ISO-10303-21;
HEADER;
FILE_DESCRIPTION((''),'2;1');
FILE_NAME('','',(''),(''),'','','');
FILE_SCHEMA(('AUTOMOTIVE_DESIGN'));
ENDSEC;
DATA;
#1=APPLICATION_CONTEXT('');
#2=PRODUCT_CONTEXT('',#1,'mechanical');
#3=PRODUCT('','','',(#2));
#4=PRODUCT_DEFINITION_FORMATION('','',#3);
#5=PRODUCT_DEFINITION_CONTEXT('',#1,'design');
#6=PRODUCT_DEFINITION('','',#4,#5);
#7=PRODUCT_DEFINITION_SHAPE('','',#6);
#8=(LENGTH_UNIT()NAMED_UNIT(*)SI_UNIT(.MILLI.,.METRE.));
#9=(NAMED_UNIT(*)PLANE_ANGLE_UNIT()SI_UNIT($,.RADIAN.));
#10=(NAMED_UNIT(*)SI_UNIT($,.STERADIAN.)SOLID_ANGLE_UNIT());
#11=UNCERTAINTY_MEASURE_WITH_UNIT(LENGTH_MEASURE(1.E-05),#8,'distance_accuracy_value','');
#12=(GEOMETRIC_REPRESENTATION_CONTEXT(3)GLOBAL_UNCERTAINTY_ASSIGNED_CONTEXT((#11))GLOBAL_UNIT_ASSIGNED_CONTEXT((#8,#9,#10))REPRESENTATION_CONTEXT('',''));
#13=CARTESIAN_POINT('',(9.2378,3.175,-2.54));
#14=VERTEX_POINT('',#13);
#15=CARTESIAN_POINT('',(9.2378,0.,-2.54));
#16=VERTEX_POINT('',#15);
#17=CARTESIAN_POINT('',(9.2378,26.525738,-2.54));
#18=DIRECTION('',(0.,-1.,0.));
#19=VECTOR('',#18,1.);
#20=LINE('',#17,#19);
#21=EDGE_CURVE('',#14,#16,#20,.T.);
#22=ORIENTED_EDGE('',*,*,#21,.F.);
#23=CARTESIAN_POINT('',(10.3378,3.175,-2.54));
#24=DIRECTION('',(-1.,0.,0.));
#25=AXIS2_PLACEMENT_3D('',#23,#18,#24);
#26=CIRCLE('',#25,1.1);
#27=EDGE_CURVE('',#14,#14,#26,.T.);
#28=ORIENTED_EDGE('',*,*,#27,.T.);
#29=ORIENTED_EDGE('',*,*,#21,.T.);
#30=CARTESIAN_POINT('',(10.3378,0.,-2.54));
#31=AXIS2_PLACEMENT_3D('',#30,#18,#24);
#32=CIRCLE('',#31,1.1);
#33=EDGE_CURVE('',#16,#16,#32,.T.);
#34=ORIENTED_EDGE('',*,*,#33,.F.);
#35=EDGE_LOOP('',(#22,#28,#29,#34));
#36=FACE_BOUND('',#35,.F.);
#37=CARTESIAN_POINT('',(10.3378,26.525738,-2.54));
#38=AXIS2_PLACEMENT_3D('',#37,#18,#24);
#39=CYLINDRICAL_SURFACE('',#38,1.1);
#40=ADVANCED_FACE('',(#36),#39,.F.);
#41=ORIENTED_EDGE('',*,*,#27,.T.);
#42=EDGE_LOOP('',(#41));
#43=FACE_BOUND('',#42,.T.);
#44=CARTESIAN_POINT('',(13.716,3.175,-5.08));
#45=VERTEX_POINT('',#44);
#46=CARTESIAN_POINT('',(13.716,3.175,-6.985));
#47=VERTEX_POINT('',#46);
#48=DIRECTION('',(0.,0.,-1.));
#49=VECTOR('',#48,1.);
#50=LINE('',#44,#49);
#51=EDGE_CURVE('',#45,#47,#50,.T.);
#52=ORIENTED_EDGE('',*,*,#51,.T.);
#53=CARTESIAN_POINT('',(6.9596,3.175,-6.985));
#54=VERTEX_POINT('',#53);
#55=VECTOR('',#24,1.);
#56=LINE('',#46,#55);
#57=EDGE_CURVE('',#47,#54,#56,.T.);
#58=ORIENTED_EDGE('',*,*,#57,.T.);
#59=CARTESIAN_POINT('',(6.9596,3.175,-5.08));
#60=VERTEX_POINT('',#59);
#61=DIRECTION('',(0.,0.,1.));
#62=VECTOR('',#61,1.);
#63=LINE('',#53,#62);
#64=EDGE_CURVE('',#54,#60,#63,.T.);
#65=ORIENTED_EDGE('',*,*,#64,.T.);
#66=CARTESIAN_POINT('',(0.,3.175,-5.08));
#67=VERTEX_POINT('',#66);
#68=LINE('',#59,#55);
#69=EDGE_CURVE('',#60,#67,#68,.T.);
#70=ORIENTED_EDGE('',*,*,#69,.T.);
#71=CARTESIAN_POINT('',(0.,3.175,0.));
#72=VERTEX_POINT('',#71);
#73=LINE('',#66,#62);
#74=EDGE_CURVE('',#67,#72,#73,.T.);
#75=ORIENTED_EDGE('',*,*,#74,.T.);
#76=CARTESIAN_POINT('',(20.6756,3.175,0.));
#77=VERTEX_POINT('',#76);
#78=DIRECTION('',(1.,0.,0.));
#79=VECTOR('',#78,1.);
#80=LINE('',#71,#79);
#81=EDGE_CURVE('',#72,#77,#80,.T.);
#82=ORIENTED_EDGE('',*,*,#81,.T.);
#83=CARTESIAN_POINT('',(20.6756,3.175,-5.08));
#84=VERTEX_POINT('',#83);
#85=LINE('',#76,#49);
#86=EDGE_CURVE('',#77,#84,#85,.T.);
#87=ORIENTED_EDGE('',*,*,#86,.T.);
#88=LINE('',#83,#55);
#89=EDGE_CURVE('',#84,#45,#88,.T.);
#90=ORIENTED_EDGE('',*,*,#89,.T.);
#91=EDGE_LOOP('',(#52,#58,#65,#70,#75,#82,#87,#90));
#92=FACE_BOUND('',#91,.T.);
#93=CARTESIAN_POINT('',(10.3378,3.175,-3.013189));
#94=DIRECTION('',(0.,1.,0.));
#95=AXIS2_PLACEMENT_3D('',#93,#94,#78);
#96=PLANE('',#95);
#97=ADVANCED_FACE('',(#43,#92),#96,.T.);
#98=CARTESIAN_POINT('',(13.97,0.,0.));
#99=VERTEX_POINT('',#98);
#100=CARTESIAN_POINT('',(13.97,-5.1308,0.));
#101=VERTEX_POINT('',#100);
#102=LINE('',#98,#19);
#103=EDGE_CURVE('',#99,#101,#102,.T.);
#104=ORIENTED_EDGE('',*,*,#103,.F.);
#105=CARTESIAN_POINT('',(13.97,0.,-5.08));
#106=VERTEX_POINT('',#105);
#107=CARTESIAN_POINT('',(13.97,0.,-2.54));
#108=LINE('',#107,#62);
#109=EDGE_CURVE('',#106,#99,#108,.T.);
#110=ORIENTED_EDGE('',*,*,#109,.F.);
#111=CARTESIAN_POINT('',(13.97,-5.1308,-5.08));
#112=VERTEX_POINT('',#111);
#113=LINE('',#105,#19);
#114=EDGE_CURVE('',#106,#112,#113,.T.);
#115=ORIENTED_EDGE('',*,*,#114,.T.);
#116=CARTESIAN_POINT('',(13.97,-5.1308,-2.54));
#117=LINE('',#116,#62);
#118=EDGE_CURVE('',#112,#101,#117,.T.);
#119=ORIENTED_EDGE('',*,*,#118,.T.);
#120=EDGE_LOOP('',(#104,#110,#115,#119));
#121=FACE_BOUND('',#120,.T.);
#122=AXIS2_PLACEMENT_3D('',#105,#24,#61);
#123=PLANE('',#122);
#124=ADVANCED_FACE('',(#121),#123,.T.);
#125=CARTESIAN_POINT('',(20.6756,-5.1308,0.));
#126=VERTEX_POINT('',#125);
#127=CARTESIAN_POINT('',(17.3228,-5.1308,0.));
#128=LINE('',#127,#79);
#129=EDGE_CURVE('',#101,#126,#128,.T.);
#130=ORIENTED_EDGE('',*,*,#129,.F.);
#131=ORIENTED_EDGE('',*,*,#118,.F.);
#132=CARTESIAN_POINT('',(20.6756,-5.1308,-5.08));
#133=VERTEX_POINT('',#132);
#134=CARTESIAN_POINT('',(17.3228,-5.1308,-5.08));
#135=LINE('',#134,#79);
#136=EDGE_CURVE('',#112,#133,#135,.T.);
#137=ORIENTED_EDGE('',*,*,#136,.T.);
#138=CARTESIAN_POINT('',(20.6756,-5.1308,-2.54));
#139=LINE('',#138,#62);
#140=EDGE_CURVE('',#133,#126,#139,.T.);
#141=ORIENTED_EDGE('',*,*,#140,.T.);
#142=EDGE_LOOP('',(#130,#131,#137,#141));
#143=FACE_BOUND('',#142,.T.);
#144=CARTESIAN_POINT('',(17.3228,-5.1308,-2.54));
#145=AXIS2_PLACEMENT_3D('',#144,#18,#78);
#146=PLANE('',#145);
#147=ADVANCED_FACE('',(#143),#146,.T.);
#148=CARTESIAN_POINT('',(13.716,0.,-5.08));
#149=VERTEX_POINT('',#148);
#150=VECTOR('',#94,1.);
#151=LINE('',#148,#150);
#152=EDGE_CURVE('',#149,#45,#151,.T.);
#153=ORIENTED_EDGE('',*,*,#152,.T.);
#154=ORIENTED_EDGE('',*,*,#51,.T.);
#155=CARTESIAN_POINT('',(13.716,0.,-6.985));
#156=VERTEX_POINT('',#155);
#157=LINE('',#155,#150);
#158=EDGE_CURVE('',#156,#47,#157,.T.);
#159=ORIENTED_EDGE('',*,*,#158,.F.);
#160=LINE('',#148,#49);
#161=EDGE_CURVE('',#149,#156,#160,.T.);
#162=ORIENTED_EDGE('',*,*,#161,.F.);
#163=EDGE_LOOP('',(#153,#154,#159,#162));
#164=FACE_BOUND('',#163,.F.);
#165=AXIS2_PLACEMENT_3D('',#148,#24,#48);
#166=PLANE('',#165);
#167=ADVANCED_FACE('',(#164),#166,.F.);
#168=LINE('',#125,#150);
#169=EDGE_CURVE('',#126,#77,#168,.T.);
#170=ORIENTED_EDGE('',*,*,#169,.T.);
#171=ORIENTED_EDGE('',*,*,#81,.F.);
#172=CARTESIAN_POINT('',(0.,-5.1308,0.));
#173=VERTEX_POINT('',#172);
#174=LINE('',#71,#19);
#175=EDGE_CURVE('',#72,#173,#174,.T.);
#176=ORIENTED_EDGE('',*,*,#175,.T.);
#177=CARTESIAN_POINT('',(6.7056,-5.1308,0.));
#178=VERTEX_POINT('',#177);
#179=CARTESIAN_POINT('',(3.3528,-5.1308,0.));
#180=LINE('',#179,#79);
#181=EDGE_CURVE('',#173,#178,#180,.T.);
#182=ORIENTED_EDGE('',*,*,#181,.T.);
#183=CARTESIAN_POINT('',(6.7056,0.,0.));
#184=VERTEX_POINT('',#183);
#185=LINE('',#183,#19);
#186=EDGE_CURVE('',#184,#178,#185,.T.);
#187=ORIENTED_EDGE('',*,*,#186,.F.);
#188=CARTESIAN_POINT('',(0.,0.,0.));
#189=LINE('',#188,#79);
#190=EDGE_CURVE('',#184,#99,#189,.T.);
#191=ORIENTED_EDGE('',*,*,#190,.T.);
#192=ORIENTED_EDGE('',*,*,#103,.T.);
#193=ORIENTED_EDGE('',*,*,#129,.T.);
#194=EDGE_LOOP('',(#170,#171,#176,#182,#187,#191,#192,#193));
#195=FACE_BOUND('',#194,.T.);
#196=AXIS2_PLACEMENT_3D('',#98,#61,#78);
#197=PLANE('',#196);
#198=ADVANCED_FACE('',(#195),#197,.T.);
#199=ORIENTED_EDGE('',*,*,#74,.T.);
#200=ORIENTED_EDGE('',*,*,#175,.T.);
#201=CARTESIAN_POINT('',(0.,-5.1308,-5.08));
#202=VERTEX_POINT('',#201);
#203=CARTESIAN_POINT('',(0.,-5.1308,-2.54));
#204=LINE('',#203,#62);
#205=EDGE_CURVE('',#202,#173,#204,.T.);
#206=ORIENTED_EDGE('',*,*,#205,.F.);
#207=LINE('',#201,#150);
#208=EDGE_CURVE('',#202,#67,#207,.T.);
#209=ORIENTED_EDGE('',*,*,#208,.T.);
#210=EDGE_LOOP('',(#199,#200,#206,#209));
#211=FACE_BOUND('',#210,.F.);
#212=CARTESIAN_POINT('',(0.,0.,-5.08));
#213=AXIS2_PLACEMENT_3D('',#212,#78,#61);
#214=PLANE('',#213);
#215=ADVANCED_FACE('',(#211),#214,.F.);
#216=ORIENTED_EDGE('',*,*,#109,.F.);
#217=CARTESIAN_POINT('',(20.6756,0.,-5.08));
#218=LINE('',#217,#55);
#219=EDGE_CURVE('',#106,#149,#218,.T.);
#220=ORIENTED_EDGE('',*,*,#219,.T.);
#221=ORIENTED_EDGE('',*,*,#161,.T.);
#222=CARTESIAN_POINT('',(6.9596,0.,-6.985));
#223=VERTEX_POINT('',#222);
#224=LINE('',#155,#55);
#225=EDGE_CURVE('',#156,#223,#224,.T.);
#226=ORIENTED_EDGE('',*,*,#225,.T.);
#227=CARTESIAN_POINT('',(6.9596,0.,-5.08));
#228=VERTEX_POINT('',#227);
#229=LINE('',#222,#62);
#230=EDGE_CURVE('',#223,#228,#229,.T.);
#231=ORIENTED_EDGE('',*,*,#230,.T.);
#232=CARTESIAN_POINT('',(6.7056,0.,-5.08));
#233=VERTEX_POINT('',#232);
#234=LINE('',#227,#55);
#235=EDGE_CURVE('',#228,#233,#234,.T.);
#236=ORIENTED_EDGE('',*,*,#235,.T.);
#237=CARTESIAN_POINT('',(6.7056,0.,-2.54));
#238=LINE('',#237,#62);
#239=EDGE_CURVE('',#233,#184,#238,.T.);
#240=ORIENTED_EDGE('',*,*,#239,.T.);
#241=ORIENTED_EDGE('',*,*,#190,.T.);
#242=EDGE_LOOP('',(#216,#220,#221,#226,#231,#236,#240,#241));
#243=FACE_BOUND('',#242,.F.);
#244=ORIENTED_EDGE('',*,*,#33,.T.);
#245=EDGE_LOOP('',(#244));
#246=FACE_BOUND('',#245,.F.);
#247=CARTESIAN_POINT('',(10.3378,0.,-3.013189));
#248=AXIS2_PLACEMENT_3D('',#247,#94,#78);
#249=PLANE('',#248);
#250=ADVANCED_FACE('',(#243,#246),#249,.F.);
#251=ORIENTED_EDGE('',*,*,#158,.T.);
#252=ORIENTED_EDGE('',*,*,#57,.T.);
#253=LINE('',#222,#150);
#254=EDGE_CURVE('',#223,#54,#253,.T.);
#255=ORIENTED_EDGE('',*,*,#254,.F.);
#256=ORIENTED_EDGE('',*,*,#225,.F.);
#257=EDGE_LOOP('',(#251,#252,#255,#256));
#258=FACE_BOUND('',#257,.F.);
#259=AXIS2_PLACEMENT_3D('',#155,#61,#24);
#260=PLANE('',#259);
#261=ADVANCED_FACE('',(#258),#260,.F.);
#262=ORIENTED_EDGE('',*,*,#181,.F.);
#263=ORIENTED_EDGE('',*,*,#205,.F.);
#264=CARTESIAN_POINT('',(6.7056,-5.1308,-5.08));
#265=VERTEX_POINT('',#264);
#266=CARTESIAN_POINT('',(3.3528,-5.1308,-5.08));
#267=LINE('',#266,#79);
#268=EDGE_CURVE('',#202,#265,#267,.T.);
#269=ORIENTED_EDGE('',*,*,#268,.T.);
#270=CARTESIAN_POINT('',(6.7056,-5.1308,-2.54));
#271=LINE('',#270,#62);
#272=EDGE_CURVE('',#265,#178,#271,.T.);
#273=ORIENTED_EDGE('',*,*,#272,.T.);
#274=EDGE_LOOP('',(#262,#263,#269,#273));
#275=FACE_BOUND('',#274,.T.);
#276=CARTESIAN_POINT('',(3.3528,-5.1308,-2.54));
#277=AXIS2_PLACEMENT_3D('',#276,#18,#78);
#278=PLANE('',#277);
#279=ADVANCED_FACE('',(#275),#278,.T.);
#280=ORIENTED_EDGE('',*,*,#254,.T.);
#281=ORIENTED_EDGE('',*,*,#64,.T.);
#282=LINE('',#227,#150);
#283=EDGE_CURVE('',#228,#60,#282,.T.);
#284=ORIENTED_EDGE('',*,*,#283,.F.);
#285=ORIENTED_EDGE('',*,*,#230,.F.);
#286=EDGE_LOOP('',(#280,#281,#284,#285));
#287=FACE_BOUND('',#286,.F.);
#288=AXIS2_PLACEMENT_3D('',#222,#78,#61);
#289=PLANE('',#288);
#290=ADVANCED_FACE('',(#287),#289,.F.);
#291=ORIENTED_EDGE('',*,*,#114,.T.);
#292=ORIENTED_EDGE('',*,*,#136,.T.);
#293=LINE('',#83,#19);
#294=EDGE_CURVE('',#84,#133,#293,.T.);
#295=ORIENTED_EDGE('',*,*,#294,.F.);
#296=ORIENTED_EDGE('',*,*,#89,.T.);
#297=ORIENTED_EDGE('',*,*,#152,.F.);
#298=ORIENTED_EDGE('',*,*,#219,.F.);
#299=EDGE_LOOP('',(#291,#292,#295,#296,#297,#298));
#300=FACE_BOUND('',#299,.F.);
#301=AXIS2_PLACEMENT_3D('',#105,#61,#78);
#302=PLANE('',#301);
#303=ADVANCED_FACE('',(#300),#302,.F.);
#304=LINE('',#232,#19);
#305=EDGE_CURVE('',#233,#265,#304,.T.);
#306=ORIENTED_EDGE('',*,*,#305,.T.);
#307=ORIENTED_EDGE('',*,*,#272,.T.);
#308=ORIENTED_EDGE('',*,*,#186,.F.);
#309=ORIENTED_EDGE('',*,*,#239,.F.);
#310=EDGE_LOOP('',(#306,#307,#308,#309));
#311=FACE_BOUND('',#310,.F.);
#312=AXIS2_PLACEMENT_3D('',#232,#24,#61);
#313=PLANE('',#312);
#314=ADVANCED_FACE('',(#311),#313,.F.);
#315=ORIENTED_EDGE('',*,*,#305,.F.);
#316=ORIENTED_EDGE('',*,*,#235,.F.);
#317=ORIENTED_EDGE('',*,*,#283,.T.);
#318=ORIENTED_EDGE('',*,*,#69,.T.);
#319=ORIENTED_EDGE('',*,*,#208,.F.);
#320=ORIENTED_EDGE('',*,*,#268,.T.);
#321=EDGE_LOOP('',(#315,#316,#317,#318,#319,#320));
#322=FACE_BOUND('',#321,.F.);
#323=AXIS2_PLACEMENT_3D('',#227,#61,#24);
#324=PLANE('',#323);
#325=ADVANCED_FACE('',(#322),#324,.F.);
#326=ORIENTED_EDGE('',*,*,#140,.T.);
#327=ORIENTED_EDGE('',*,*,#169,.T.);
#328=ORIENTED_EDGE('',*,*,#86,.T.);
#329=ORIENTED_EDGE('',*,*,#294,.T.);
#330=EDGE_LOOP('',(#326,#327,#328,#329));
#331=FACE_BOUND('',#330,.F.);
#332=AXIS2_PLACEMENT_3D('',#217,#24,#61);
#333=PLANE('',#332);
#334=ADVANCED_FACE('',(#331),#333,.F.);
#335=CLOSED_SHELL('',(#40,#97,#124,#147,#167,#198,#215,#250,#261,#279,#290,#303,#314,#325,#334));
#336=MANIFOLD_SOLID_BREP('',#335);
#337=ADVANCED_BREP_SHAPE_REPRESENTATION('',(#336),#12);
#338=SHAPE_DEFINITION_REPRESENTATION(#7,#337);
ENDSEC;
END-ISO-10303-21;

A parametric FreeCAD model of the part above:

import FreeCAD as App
import Part
import Sketcher
Q = App.Units.Quantity


def add_polygon(sketch, points):
    """Adds a closed chain of lines whose ends are joined by coincident constraints."""
    first, n = sketch.GeometryCount, len(points)
    for a, b in zip(points, points[1:] + points[:1]):
        sketch.addGeometry(Part.LineSegment(App.Vector(*a, 0), App.Vector(*b, 0)), False)
    for i in range(n):
        sketch.addConstraint(Sketcher.Constraint("Coincident", first + i, 2, first + (i + 1) % n, 1))

doc = App.newDocument("Part")
body = doc.addObject("PartDesign::Body", "Body")

sketch1 = body.newObject("Sketcher::SketchObject", "Sketch")
sketch1.AttachmentSupport = (doc.getObject("XZ_Plane"), [""])
sketch1.MapMode = "FlatFace"
add_polygon(sketch1, [(0, 0), (20.7, 0), (20.7, -5.1), (13.7, -5.1), (13.7, -7), (7, -7), (7, -5.1), (0, -5.1)])
sketch1.addConstraint([
    Sketcher.Constraint("Horizontal", 0),
    Sketcher.Constraint("Vertical", 1),
    Sketcher.Constraint("Horizontal", 2),
    Sketcher.Constraint("Vertical", 3),
    Sketcher.Constraint("Horizontal", 4),
    Sketcher.Constraint("Vertical", 5),
    Sketcher.Constraint("Horizontal", 6),
    Sketcher.Constraint("Vertical", 7),
    Sketcher.Constraint("Coincident", 7, 2, -1, 1),
    Sketcher.Constraint("Horizontal", 2, 2, 5, 2),
    Sketcher.Constraint("Equal", 2, 6),
    Sketcher.Constraint("DistanceY", 1, 2, 1, 1, Q("0.2 in")),
    Sketcher.Constraint("DistanceX", 0, 1, 0, 2, Q("0.814 in")),
    Sketcher.Constraint("DistanceX", 2, 2, 2, 1, Q("0.274 in")),
    Sketcher.Constraint("DistanceY", 3, 2, 3, 1, Q("0.075 in")),
])
pad1 = body.newObject("PartDesign::Pad", "Pad")
pad1.Profile = sketch1
pad1.Length = Q("0.125 in")
pad1.Reversed = True

sketch2 = body.newObject("Sketcher::SketchObject", "Sketch001")
sketch2.AttachmentSupport = (doc.getObject("XZ_Plane"), [""])
sketch2.MapMode = "FlatFace"
add_polygon(sketch2, [(14, 0), (14, -5), (21, -5), (21, 0)])
add_polygon(sketch2, [(0, 0), (0, -5), (7, -5), (7, 0)])
sketch2.addConstraint([
    Sketcher.Constraint("Vertical", 0),
    Sketcher.Constraint("Horizontal", 1),
    Sketcher.Constraint("Vertical", 2),
    Sketcher.Constraint("Horizontal", 3),
    Sketcher.Constraint("Vertical", 4),
    Sketcher.Constraint("Horizontal", 5),
    Sketcher.Constraint("Vertical", 6),
    Sketcher.Constraint("Horizontal", 7),
    Sketcher.Constraint("Coincident", 7, 2, -1, 1),
    Sketcher.Constraint("PointOnObject", 2, 2, -1),
    Sketcher.Constraint("Horizontal", 1, 2, 4, 2),
    Sketcher.Constraint("Equal", 3, 5),
    Sketcher.Constraint("DistanceY", 0, 2, 0, 1, Q("0.2 in")),
    Sketcher.Constraint("DistanceX", 1, 1, 1, 2, Q("0.264 in")),
    Sketcher.Constraint("DistanceX", -1, 1, 0, 2, Q("0.55 in")),
])
pad2 = body.newObject("PartDesign::Pad", "Pad001")
pad2.Profile = sketch2
pad2.Length = Q("0.202 in")

sketch3 = body.newObject("Sketcher::SketchObject", "Sketch002")
sketch3.AttachmentSupport = (doc.getObject("XZ_Plane"), [""])
sketch3.MapMode = "FlatFace"
sketch3.AttachmentOffset = App.Placement(App.Vector(0, 0, -0.125 * 25.4), App.Rotation())
sketch3.addGeometry(Part.Circle(App.Vector(10.3, -2.5, 0), App.Vector(0, 0, 1), 1.1), False)
sketch3.addConstraint([
    Sketcher.Constraint("DistanceY", 0, 3, -1, 1, Q("0.1 in")),
    Sketcher.Constraint("Diameter", 0, 2.2),
    Sketcher.Constraint("DistanceX", -1, 1, 0, 3, Q("0.407 in")),
])
doc.recompute()
hole = body.newObject("PartDesign::Hole", "Hole")
hole.Profile = sketch3
hole.ThreadType = "None"
hole.Diameter = 2.2
hole.DepthType = "ThroughAll"
hole.Reversed = True

doc.recompute()
